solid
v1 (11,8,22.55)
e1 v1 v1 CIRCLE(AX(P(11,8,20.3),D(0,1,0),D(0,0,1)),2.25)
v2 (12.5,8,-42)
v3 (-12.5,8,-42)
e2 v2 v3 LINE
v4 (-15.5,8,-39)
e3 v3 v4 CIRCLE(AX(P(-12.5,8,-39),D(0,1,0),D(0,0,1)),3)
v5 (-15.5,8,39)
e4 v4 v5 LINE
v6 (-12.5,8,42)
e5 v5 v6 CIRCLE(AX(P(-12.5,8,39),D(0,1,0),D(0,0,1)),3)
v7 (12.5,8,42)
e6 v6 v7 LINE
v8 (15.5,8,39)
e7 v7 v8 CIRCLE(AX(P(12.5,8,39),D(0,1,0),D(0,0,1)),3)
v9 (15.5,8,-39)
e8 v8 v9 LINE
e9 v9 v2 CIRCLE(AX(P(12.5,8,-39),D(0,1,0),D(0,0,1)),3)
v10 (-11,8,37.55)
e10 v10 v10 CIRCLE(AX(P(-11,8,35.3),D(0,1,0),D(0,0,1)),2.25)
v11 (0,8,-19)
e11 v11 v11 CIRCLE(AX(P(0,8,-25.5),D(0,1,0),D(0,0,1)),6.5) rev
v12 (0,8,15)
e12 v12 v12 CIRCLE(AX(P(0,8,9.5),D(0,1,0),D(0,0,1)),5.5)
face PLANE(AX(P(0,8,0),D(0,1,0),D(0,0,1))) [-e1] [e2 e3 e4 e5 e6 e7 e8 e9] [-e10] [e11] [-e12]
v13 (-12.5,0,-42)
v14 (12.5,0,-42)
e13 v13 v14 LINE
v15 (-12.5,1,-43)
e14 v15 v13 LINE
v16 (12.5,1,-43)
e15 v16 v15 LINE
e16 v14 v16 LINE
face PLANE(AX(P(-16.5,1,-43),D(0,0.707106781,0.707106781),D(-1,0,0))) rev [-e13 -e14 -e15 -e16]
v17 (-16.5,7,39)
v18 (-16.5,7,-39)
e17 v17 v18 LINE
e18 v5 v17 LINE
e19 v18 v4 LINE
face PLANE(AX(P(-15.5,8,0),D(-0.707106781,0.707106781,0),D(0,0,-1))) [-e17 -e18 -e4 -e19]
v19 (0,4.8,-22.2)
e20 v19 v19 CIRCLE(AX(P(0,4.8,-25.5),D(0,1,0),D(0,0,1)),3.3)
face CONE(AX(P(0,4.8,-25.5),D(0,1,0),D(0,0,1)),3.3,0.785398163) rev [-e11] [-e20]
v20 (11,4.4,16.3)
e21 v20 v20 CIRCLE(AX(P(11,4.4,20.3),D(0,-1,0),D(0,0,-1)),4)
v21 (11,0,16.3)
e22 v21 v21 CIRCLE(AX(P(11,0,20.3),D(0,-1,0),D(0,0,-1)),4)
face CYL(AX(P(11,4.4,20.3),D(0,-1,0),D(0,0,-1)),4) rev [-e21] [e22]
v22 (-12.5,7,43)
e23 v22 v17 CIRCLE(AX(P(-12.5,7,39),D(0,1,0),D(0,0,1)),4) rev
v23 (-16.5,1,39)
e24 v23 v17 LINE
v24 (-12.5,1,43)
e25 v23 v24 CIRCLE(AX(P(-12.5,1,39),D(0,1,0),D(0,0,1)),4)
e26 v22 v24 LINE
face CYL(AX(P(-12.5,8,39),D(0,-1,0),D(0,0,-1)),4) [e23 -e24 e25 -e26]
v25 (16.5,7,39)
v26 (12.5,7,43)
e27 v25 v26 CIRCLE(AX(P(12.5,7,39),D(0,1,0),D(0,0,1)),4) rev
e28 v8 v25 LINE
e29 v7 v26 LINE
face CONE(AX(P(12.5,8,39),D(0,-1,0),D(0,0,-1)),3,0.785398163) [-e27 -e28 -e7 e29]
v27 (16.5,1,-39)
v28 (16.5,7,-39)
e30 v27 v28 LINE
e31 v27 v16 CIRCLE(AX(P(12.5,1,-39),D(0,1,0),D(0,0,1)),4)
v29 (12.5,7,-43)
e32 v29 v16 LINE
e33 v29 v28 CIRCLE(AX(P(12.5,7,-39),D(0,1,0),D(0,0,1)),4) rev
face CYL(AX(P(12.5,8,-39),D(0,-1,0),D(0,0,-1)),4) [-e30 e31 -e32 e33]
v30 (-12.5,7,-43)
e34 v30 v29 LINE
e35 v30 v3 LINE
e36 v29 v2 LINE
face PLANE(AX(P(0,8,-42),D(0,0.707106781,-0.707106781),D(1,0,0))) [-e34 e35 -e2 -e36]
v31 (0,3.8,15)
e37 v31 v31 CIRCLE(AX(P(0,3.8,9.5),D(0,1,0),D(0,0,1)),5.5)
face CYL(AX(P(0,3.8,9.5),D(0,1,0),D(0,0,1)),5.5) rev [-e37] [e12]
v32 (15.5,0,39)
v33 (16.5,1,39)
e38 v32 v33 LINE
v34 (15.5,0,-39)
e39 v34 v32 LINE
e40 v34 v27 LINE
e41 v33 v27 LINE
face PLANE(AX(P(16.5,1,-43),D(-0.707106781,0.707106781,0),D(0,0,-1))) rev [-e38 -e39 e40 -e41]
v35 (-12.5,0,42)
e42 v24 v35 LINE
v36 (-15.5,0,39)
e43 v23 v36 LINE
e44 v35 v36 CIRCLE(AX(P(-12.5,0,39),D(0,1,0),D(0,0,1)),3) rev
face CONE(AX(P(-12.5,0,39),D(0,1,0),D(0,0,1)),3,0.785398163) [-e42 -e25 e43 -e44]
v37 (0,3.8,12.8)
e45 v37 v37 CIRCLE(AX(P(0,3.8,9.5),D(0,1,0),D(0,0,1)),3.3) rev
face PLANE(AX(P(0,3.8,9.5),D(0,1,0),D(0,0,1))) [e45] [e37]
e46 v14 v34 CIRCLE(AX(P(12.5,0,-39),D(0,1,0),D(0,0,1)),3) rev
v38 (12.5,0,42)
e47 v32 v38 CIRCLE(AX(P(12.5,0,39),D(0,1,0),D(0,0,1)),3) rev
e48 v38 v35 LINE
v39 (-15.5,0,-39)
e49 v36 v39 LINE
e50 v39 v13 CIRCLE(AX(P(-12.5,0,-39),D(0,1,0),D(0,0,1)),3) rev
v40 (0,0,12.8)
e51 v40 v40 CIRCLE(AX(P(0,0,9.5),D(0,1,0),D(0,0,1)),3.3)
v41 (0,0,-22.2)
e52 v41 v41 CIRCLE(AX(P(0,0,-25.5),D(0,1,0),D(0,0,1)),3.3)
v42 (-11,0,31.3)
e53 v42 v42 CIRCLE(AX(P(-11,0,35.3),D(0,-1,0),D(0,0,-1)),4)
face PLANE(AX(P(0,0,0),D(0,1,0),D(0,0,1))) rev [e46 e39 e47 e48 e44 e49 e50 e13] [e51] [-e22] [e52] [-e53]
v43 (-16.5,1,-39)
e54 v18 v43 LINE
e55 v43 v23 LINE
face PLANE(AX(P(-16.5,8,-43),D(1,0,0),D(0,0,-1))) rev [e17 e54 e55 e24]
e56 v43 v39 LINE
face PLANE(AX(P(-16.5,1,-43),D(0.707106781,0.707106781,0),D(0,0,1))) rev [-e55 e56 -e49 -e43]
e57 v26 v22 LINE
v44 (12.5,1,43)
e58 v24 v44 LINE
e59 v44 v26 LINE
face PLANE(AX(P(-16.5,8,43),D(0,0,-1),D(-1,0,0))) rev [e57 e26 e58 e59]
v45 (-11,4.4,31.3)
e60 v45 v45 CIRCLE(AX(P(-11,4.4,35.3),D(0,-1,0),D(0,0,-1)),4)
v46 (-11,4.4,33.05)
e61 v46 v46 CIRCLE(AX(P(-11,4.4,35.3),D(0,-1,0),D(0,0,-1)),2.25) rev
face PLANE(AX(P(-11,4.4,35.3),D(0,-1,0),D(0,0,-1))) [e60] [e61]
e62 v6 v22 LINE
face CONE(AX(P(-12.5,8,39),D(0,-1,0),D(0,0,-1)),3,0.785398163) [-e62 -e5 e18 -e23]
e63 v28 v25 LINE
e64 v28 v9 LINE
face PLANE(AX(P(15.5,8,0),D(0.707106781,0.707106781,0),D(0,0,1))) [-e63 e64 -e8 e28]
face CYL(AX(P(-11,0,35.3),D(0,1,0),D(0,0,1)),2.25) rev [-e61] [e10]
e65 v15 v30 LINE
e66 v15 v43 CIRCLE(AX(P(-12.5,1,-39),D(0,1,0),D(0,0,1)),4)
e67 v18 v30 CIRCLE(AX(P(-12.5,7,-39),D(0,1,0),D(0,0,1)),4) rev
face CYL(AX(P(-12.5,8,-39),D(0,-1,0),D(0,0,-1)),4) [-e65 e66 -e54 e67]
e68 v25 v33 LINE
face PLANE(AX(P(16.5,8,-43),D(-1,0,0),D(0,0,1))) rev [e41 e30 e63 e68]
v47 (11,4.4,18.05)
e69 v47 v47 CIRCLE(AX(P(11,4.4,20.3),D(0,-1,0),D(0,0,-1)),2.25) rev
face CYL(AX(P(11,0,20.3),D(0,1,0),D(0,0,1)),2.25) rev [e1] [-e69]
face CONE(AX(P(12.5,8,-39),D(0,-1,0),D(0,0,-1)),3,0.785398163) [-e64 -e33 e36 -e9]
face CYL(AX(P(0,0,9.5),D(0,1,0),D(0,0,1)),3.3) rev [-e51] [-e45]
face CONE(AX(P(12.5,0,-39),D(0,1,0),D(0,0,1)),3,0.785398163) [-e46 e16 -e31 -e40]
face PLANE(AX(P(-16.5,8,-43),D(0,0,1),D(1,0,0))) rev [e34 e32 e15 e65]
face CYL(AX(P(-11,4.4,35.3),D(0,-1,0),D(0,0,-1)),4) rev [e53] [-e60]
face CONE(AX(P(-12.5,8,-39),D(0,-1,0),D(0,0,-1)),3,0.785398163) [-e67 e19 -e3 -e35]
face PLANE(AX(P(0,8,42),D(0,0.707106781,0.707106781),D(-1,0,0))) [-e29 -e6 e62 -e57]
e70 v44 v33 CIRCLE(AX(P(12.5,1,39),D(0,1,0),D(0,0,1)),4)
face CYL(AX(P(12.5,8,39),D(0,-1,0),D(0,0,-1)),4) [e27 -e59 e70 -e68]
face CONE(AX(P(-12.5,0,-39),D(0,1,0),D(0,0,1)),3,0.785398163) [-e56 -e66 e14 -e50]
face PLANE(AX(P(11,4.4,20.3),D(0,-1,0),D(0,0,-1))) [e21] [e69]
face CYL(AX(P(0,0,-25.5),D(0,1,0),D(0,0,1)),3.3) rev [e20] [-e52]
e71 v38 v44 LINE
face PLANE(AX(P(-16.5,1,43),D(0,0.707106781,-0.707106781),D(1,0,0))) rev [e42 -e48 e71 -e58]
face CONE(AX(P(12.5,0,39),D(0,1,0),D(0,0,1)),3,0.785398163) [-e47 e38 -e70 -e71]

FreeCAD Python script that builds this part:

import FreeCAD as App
import Part
import Sketcher
Q = App.Units.Quantity


def edges_at(feature, points):
    """Names of the edges that pass closest to the given points."""
    edges = feature.Shape.Edges
    near = lambda p: min(range(len(edges)), key=lambda i: edges[i].distToShape(Part.Vertex(*p))[0])
    return sorted({f"Edge{near(p) + 1}" for p in points})


def add_polygon(sketch, points):
    """Adds a closed chain of lines whose ends are joined by coincident constraints."""
    first, n = sketch.GeometryCount, len(points)
    for a, b in zip(points, points[1:] + points[:1]):
        sketch.addGeometry(Part.LineSegment(App.Vector(*a, 0), App.Vector(*b, 0)), False)
    for i in range(n):
        sketch.addConstraint(Sketcher.Constraint("Coincident", first + i, 2, first + (i + 1) % n, 1))

doc = App.newDocument("Part")
body = doc.addObject("PartDesign::Body", "Body")

# Sketch on XZ plane
sketch1 = body.newObject("Sketcher::SketchObject", "Sketch")
sketch1.AttachmentSupport = (doc.getObject("XZ_Plane"), [""])
sketch1.MapMode = "FlatFace"
add_polygon(sketch1, [(-16, -43), (-16, 43), (16, 43), (16, -43)])  # lines 0-3
sketch1.addConstraint(Sketcher.Constraint("Vertical", 0))
sketch1.addConstraint(Sketcher.Constraint("Horizontal", 1))
sketch1.addConstraint(Sketcher.Constraint("Vertical", 2))
sketch1.addConstraint(Sketcher.Constraint("Horizontal", 3))
sketch1.addConstraint(Sketcher.Constraint("Symmetric", 0, 2, 2, 2, -1, 1))
sketch1.addConstraint(Sketcher.Constraint("DistanceX", 1, 1, 1, 2, Q("33 mm")))
sketch1.addConstraint(Sketcher.Constraint("DistanceY", 0, 1, 0, 2, Q("86 mm")))
pad1 = body.newObject("PartDesign::Pad", "Pad")
pad1.Profile = sketch1
pad1.Length = 8
pad1.Reversed = True
doc.recompute()

fillet = body.newObject("PartDesign::Fillet", "Fillet")
fillet.Base = (pad1, edges_at(pad1, [
    (16.5, 4, 43),
    (-16.5, 4, 43),
    (-16.5, 4, -43),
    (16.5, 4, -43),
]))
fillet.Radius = 4
doc.recompute()

chamfer = body.newObject("PartDesign::Chamfer", "Chamfer")
chamfer.Base = (fillet, edges_at(fillet, [
    (-16.5, 0, 0),
    (-16.5, 8, 0),
    (16.5, 0, 0),
    (0, 0, 43),
    (0, 0, -43),
    (15.328, 0, 41.828),
    (-15.328, 0, 41.828),
    (15.328, 0, -41.828),
    (-15.328, 0, -41.828),
    (0, 8, -43),
    (16.5, 8, 0),
    (0, 8, 43),
    (15.328, 8, 41.828),
    (-15.328, 8, 41.828),
    (15.328, 8, -41.828),
    (-15.328, 8, -41.828),
]))
chamfer.Size = 1

# Sketch on XZ plane
sketch2 = body.newObject("Sketcher::SketchObject", "Sketch001")
sketch2.AttachmentSupport = (doc.getObject("XZ_Plane"), [""])
sketch2.MapMode = "FlatFace"
sketch2.AttachmentOffset = App.Placement(App.Vector(0, 0, -8), App.Rotation())
sketch2.addGeometry(Part.Circle(App.Vector(0, -25.5, 0), App.Vector(0, 0, 1), 3.3), False)
sketch2.addGeometry(Part.Circle(App.Vector(0, 9.5, 0), App.Vector(0, 0, 1), 3.3), False)
sketch2.addGeometry(Part.Circle(App.Vector(11, 20.3, 0), App.Vector(0, 0, 1), 2.2), False)
sketch2.addGeometry(Part.Circle(App.Vector(-11, 35.3, 0), App.Vector(0, 0, 1), 2.2), False)
sketch2.addConstraint(Sketcher.Constraint("Equal", 0, 1))
sketch2.addConstraint(Sketcher.Constraint("Equal", 2, 3))
sketch2.addConstraint(Sketcher.Constraint("PointOnObject", 0, 3, -2))
sketch2.addConstraint(Sketcher.Constraint("PointOnObject", 1, 3, -2))
sketch2.addConstraint(Sketcher.Constraint("Diameter", 0, Q("6.6 mm")))
sketch2.addConstraint(Sketcher.Constraint("Diameter", 2, Q("4.5 mm")))
sketch2.addConstraint(Sketcher.Constraint("DistanceX", -1, 1, 2, 3, Q("11 mm")))
sketch2.addConstraint(Sketcher.Constraint("DistanceX", 3, 3, -1, 1, Q("11 mm")))
sketch2.addConstraint(Sketcher.Constraint("DistanceY", 0, 3, 1, 3, Q("35 mm")))
sketch2.addConstraint(Sketcher.Constraint("DistanceY", 2, 3, 3, 3, Q("15 mm")))
sketch2.addConstraint(Sketcher.Constraint("DistanceY", 0, 3, -1, 1, Q("25.5 mm")))
sketch2.addConstraint(Sketcher.Constraint("DistanceY", -1, 1, 2, 3, Q("20.3 mm")))
pocket1 = body.newObject("PartDesign::Pocket", "Pocket")
pocket1.Profile = sketch2
pocket1.Length = 8
pocket1.Reversed = True

# Sketch on XZ plane
sketch3 = body.newObject("Sketcher::SketchObject", "Sketch002")
sketch3.AttachmentSupport = (doc.getObject("XZ_Plane"), [""])
sketch3.MapMode = "FlatFace"
sketch3.AttachmentOffset = App.Placement(App.Vector(0, 0, -8), App.Rotation())
sketch3.addGeometry(Part.Circle(App.Vector(0, 10, 0), App.Vector(0, 0, 1), 6), False)
sketch3.addConstraint(Sketcher.Constraint("PointOnObject", 0, 3, -2))
sketch3.addConstraint(Sketcher.Constraint("Diameter", 0, Q("11 mm")))
sketch3.addConstraint(Sketcher.Constraint("DistanceY", -1, 1, 0, 3, Q("9.5 mm")))
pocket2 = body.newObject("PartDesign::Pocket", "Pocket001")
pocket2.Profile = sketch3
pocket2.Length = 4.2
pocket2.Reversed = True
doc.recompute()

chamfer2 = body.newObject("PartDesign::Chamfer", "Chamfer001")
chamfer2.Base = (pocket2, edges_at(pocket2, [(-3.3, 8, -25.5)]))
chamfer2.Size = 3.2

# Sketch on XZ plane
sketch4 = body.newObject("Sketcher::SketchObject", "Sketch003")
sketch4.AttachmentSupport = (doc.getObject("XZ_Plane"), [""])
sketch4.MapMode = "FlatFace"
sketch4.addGeometry(Part.Circle(App.Vector(11, 20.3, 0), App.Vector(0, 0, 1), 4), False)
sketch4.addGeometry(Part.Circle(App.Vector(-11, 35.3, 0), App.Vector(0, 0, 1), 4), False)
sketch4.addConstraint(Sketcher.Constraint("Equal", 0, 1))
sketch4.addConstraint(Sketcher.Constraint("Diameter", 0, Q("8 mm")))
sketch4.addConstraint(Sketcher.Constraint("DistanceX", -1, 1, 0, 3, Q("11 mm")))
sketch4.addConstraint(Sketcher.Constraint("DistanceX", 1, 3, -1, 1, Q("11 mm")))
sketch4.addConstraint(Sketcher.Constraint("DistanceY", 0, 3, 1, 3, Q("15 mm")))
sketch4.addConstraint(Sketcher.Constraint("DistanceY", -1, 1, 0, 3, Q("20.3 mm")))
pocket3 = body.newObject("PartDesign::Pocket", "Pocket002")
pocket3.Profile = sketch4
pocket3.Length = 4.4

doc.recompute()
